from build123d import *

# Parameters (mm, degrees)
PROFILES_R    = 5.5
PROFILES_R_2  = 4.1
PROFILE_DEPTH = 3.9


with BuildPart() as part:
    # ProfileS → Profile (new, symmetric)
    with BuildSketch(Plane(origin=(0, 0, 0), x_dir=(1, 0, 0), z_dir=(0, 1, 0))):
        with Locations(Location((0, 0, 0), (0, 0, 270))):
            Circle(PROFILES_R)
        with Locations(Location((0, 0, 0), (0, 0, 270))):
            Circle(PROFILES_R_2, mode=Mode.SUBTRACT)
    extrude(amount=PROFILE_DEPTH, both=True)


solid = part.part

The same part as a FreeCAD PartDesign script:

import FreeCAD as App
import Part
import Sketcher

doc = App.newDocument("Part")
body = doc.addObject("PartDesign::Body", "Body")

sketch1 = body.newObject("Sketcher::SketchObject", "Sketch")
sketch1.AttachmentSupport = (doc.getObject("XZ_Plane"), [""])
sketch1.MapMode = "FlatFace"
sketch1.addGeometry(Part.Circle(App.Vector(0, 0, 0), App.Vector(0, 0, 1), 5.5), False)
sketch1.addGeometry(Part.Circle(App.Vector(0, 0, 0), App.Vector(0, 0, 1), 4.1), False)
sketch1.addConstraint(Sketcher.Constraint("Coincident", 0, 3, -1, 1))
sketch1.addConstraint(Sketcher.Constraint("Coincident", 1, 3, -1, 1))
sketch1.addConstraint(Sketcher.Constraint("Diameter", 0, 11.0))
sketch1.addConstraint(Sketcher.Constraint("Diameter", 1, 8.2))
pad1 = body.newObject("PartDesign::Pad", "Pad")
pad1.Profile = sketch1
pad1.Length = 7.8
pad1.Midplane = True

doc.recompute()
